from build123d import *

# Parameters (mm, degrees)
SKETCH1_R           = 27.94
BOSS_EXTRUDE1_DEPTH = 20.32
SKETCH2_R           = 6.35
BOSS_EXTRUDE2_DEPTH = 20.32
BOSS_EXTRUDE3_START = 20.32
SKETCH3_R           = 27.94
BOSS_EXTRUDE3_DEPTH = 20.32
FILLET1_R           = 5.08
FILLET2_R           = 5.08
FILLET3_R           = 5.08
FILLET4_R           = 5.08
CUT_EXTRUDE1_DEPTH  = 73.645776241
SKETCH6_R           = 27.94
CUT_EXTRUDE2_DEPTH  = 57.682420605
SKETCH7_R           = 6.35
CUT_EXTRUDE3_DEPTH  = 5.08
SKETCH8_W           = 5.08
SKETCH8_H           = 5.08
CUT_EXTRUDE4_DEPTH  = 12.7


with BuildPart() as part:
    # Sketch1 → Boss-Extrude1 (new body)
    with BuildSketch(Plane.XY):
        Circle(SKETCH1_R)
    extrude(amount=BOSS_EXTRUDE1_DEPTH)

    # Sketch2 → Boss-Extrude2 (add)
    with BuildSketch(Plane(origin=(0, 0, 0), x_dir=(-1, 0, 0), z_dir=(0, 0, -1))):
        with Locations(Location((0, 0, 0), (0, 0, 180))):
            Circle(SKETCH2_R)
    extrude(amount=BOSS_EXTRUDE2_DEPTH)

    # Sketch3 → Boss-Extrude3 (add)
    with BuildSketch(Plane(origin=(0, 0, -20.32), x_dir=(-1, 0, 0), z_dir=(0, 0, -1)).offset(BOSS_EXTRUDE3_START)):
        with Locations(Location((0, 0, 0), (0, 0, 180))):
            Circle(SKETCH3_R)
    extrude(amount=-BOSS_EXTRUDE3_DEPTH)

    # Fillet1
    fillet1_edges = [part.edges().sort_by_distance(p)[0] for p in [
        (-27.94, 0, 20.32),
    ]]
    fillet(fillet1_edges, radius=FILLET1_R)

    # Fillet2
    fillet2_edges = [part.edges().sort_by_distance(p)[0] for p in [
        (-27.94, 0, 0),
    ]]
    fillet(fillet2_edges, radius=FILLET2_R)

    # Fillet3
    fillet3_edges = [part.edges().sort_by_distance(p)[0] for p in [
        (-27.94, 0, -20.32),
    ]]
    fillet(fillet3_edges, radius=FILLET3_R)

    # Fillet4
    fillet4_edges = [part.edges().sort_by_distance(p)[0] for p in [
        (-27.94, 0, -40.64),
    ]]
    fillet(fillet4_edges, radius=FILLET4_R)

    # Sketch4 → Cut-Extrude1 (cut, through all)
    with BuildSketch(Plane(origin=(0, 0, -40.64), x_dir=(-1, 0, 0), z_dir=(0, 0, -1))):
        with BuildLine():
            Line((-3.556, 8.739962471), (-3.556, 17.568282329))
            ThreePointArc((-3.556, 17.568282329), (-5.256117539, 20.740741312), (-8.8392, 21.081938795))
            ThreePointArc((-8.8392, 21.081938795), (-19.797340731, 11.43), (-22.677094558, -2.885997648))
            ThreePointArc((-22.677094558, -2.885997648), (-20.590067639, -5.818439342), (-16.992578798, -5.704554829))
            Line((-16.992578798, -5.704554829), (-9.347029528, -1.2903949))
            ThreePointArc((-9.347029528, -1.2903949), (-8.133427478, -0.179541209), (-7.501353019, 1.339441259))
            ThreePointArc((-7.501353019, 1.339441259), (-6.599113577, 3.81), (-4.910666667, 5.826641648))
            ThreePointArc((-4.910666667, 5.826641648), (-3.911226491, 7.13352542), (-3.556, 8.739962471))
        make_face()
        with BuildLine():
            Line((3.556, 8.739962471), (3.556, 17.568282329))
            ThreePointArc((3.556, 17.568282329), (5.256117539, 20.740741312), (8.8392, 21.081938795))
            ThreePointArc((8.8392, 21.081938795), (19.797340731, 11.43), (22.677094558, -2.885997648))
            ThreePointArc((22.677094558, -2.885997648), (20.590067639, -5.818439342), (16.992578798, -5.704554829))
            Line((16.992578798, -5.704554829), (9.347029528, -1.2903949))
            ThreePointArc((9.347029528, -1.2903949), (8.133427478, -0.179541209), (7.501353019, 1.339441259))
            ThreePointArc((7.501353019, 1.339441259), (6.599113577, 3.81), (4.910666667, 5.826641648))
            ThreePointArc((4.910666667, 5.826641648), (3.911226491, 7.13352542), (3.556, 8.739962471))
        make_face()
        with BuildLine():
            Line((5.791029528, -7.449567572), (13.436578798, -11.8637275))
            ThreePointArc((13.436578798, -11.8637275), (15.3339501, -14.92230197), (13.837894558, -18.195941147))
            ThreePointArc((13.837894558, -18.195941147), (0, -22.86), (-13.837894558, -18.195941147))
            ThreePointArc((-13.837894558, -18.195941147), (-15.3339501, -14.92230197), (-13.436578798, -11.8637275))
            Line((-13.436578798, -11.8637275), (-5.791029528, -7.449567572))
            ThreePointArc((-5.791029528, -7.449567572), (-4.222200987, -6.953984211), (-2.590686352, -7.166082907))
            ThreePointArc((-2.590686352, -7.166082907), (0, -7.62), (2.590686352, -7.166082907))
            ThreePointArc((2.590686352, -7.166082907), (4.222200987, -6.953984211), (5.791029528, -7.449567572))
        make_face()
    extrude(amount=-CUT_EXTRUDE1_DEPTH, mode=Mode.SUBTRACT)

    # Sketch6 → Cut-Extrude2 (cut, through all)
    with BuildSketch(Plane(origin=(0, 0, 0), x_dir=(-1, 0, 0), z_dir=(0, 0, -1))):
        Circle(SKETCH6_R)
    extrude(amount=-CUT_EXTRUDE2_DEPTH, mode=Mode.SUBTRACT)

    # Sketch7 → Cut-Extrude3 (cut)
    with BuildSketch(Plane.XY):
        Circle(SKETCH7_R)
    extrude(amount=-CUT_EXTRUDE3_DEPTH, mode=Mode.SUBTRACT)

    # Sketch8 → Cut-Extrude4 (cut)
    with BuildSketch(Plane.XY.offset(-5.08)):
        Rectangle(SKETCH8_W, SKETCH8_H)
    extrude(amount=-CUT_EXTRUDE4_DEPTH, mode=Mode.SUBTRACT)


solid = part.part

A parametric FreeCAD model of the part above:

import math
import FreeCAD as App
import Part
import Sketcher

V = App.Vector
Q = App.Units.Quantity


def edges_at(feature, points):
    """Names of the edges that pass closest to the given points."""
    edges = feature.Shape.Edges
    near = lambda p: min(range(len(edges)), key=lambda i: edges[i].distToShape(Part.Vertex(*p))[0])
    return sorted({f"Edge{near(p) + 1}" for p in points})


def add_polygon(sketch, points):
    """Adds a closed chain of lines whose ends are joined by coincident constraints."""
    first, n = sketch.GeometryCount, len(points)
    for a, b in zip(points, points[1:] + points[:1]):
        sketch.addGeometry(Part.LineSegment(App.Vector(*a, 0), App.Vector(*b, 0)), False)
    for i in range(n):
        sketch.addConstraint(Sketcher.Constraint("Coincident", first + i, 2, first + (i + 1) % n, 1))

doc = App.newDocument("Part")
body = doc.addObject("PartDesign::Body", "Body")

# Sketch on XY plane
sketch1 = body.newObject("Sketcher::SketchObject", "Sketch")
sketch1.AttachmentSupport = (doc.getObject("XY_Plane"), [""])
sketch1.MapMode = "FlatFace"
sketch1.addGeometry(Part.Circle(V(0, 0, 0), V(0, 0, 1), 28), False)
sketch1.addConstraint([
    Sketcher.Constraint("Coincident", 0, 3, -1, 1),
    Sketcher.Constraint("Diameter", 0, Q("2.2 in")),
])
pad1 = body.newObject("PartDesign::Pad", "Pad")
pad1.Profile = sketch1
pad1.Length = Q("0.8 in")

# Sketch on XY plane
sketch2 = body.newObject("Sketcher::SketchObject", "Sketch001")
sketch2.AttachmentSupport = (doc.getObject("XY_Plane"), [""])
sketch2.MapMode = "FlatFace"
sketch2.addGeometry(Part.Circle(V(0, 0, 0), V(0, 0, 1), 6), False)
sketch2.addConstraint([
    Sketcher.Constraint("Coincident", 0, 3, -1, 1),
    Sketcher.Constraint("Diameter", 0, Q("0.5 in")),
])
pad2 = body.newObject("PartDesign::Pad", "Pad001")
pad2.Profile = sketch2
pad2.Length = Q("0.8 in")
pad2.Reversed = True

# Sketch on XY plane
sketch3 = body.newObject("Sketcher::SketchObject", "Sketch002")
sketch3.AttachmentSupport = (doc.getObject("XY_Plane"), [""])
sketch3.MapMode = "FlatFace"
sketch3.AttachmentOffset = App.Placement(V(0, 0, -1.6 * 25.4), App.Rotation())
sketch3.addGeometry(Part.Circle(V(0, 0, 0), V(0, 0, 1), 28), False)
sketch3.addConstraint([
    Sketcher.Constraint("Coincident", 0, 3, -1, 1),
    Sketcher.Constraint("Diameter", 0, Q("2.2 in")),
])
pad3 = body.newObject("PartDesign::Pad", "Pad002")
pad3.Profile = sketch3
pad3.Length = Q("0.8 in")
doc.recompute()

fillet = body.newObject("PartDesign::Fillet", "Fillet")
fillet.Base = (pad3, edges_at(pad3, [(-27.94, 0, 20.32)]))
fillet.Radius = Q("0.2 in")
doc.recompute()

fillet2 = body.newObject("PartDesign::Fillet", "Fillet001")
fillet2.Base = (fillet, edges_at(fillet, [(-27.94, 0, 0)]))
fillet2.Radius = Q("0.2 in")
doc.recompute()

fillet3 = body.newObject("PartDesign::Fillet", "Fillet002")
fillet3.Base = (fillet2, edges_at(fillet2, [(-27.94, 0, -20.32)]))
fillet3.Radius = Q("0.2 in")
doc.recompute()

fillet4 = body.newObject("PartDesign::Fillet", "Fillet003")
fillet4.Base = (fillet3, edges_at(fillet3, [(-27.94, 0, -40.64)]))
fillet4.Radius = Q("0.2 in")

# Sketch on XY plane
sketch4 = body.newObject("Sketcher::SketchObject", "Sketch003")
sketch4.AttachmentSupport = (doc.getObject("XY_Plane"), [""])
sketch4.MapMode = "FlatFace"
sketch4.AttachmentOffset = App.Placement(V(0, 0, -1.6 * 25.4), App.Rotation())
sketch4.addGeometry([
    Part.LineSegment(V(3.6, 8.7, 0), V(3.6, 17.6, 0)),  # 0
    Part.ArcOfCircle(Part.Circle(V(7.4, 17.6, 0), V(0, 0, 1), 3.8), math.radians(67), math.radians(180)),  # 1
    Part.ArcOfCircle(Part.Circle(V(0, 0, 0), V(0, 0, 1), 22.9), math.radians(-7), math.radians(67)),  # 2
    Part.ArcOfCircle(Part.Circle(V(18.9, -2.4, 0), V(0, 0, 1), 3.8), math.radians(-120), math.radians(-7)),  # 3
    Part.LineSegment(V(17, -5.7, 0), V(9.3, -1.3, 0)),  # 4
    Part.ArcOfCircle(Part.Circle(V(11.3, 2, 0), V(0, 0, 1), 3.8), math.radians(-170), math.radians(-120)),  # 5
    Part.ArcOfCircle(Part.Circle(V(0, 0, 0), V(0, 0, 1), 7.6), math.radians(10), math.radians(50)),  # 6
    Part.ArcOfCircle(Part.Circle(V(7.4, 8.7, 0), V(0, 0, 1), 3.8), math.radians(-180), math.radians(-130)),  # 7
    Part.LineSegment(V(-3.6, 17.6, 0), V(-3.6, 8.7, 0)),  # 8
    Part.ArcOfCircle(Part.Circle(V(-7.4, 8.7, 0), V(0, 0, 1), 3.8), math.radians(-50), math.radians(0)),  # 9
    Part.ArcOfCircle(Part.Circle(V(0, 0, 0), V(0, 0, 1), 7.6), math.radians(130), math.radians(170)),  # 10
    Part.ArcOfCircle(Part.Circle(V(-11.3, 2, 0), V(0, 0, 1), 3.8), math.radians(-60), math.radians(-10)),  # 11
    Part.LineSegment(V(-9.3, -1.3, 0), V(-17, -5.7, 0)),  # 12
    Part.ArcOfCircle(Part.Circle(V(-18.9, -2.4, 0), V(0, 0, 1), 3.8), math.radians(-173), math.radians(-60)),  # 13
    Part.ArcOfCircle(Part.Circle(V(0, 0, 0), V(0, 0, 1), 22.9), math.radians(113), math.radians(187)),  # 14
    Part.ArcOfCircle(Part.Circle(V(-7.4, 17.6, 0), V(0, 0, 1), 3.8), math.radians(0), math.radians(113)),  # 15
    Part.LineSegment(V(-13.4, -11.9, 0), V(-5.8, -7.4, 0)),  # 16
    Part.ArcOfCircle(Part.Circle(V(-3.9, -10.7, 0), V(0, 0, 1), 3.8), math.radians(70), math.radians(120)),  # 17
    Part.ArcOfCircle(Part.Circle(V(0, 0, 0), V(0, 0, 1), 7.6), math.radians(-110), math.radians(-70)),  # 18
    Part.ArcOfCircle(Part.Circle(V(3.9, -10.7, 0), V(0, 0, 1), 3.8), math.radians(60), math.radians(110)),  # 19
    Part.LineSegment(V(5.8, -7.4, 0), V(13.4, -11.9, 0)),  # 20
    Part.ArcOfCircle(Part.Circle(V(11.5, -15.2, 0), V(0, 0, 1), 3.8), math.radians(-53), math.radians(60)),  # 21
    Part.ArcOfCircle(Part.Circle(V(0, 0, 0), V(0, 0, 1), 22.9), math.radians(-127), math.radians(-53)),  # 22
    Part.ArcOfCircle(Part.Circle(V(-11.5, -15.2, 0), V(0, 0, 1), 3.8), math.radians(120), math.radians(233)),  # 23
], False)
sketch4.addConstraint([
    Sketcher.Constraint("Tangent", 0, 2, 1, 2),
    Sketcher.Constraint("Tangent", 1, 1, 2, 2),
    Sketcher.Constraint("Tangent", 2, 1, 3, 2),
    Sketcher.Constraint("Tangent", 3, 1, 4, 1),
    Sketcher.Constraint("Tangent", 4, 2, 5, 2),
    Sketcher.Constraint("Tangent", 5, 1, 6, 1),
    Sketcher.Constraint("Tangent", 6, 2, 7, 2),
    Sketcher.Constraint("Tangent", 7, 1, 0, 1),
    Sketcher.Constraint("Tangent", 8, 2, 9, 2),
    Sketcher.Constraint("Tangent", 9, 1, 10, 1),
    Sketcher.Constraint("Tangent", 10, 2, 11, 2),
    Sketcher.Constraint("Tangent", 11, 1, 12, 1),
    Sketcher.Constraint("Tangent", 12, 2, 13, 2),
    Sketcher.Constraint("Tangent", 13, 1, 14, 2),
    Sketcher.Constraint("Tangent", 14, 1, 15, 2),
    Sketcher.Constraint("Tangent", 15, 1, 8, 1),
    Sketcher.Constraint("Tangent", 16, 2, 17, 2),
    Sketcher.Constraint("Tangent", 17, 1, 18, 1),
    Sketcher.Constraint("Tangent", 18, 2, 19, 2),
    Sketcher.Constraint("Tangent", 19, 1, 20, 1),
    Sketcher.Constraint("Tangent", 20, 2, 21, 2),
    Sketcher.Constraint("Tangent", 21, 1, 22, 2),
    Sketcher.Constraint("Tangent", 22, 1, 23, 2),
    Sketcher.Constraint("Tangent", 23, 1, 16, 1),
    Sketcher.Constraint("Vertical", 0),
    Sketcher.Constraint("Vertical", 8),
    Sketcher.Constraint("Coincident", 2, 3, -1, 1),
    Sketcher.Constraint("Coincident", 6, 3, -1, 1),
    Sketcher.Constraint("Coincident", 10, 3, -1, 1),
    Sketcher.Constraint("Coincident", 14, 3, -1, 1),
    Sketcher.Constraint("Coincident", 18, 3, -1, 1),
    Sketcher.Constraint("Coincident", 22, 3, -1, 1),
    Sketcher.Constraint("Equal", 1, 3),
    Sketcher.Constraint("Equal", 3, 5),
    Sketcher.Constraint("Equal", 5, 7),
    Sketcher.Constraint("Equal", 7, 9),
    Sketcher.Constraint("Equal", 6, 10),
    Sketcher.Constraint("Equal", 9, 11),
    Sketcher.Constraint("Equal", 11, 13),
    Sketcher.Constraint("Equal", 2, 14),
    Sketcher.Constraint("Equal", 13, 15),
    Sketcher.Constraint("Equal", 15, 17),
    Sketcher.Constraint("Equal", 10, 18),
    Sketcher.Constraint("Equal", 17, 19),
    Sketcher.Constraint("Equal", 19, 21),
    Sketcher.Constraint("Equal", 14, 22),
    Sketcher.Constraint("Equal", 21, 23),
    Sketcher.Constraint("Symmetric", 4, 2, 11, 1, -2),
    Sketcher.Constraint("Symmetric", 16, 2, 19, 1, -2),
    Sketcher.Constraint("Parallel", 12, 16),
    Sketcher.Constraint("Horizontal", 7, 3, 9, 3),
    Sketcher.Constraint("Equal", 12, 16),
    Sketcher.Constraint("Radius", 2, Q("0.9 in")),
    Sketcher.Constraint("Radius", 6, Q("0.3 in")),
    Sketcher.Constraint("Radius", 1, Q("0.15 in")),
    Sketcher.Constraint("Angle", 4, Q("150 deg")),
    Sketcher.Constraint("DistanceX", -1, 1, 1, 3, Q("0.29 in")),
    Sketcher.Constraint("DistanceX", 11, 3, 17, 3, Q("0.29 in")),
])
pocket1 = body.newObject("PartDesign::Pocket", "Pocket")
pocket1.Profile = sketch4
pocket1.Type = "ThroughAll"
pocket1.Reversed = True

# Sketch on XY plane
sketch5 = body.newObject("Sketcher::SketchObject", "Sketch004")
sketch5.AttachmentSupport = (doc.getObject("XY_Plane"), [""])
sketch5.MapMode = "FlatFace"
sketch5.addGeometry(Part.Circle(V(0, 0, 0), V(0, 0, 1), 28), False)
sketch5.addConstraint([
    Sketcher.Constraint("Coincident", 0, 3, -1, 1),
    Sketcher.Constraint("Diameter", 0, Q("2.2 in")),
])
pocket2 = body.newObject("PartDesign::Pocket", "Pocket001")
pocket2.Profile = sketch5
pocket2.Type = "ThroughAll"
pocket2.Reversed = True

# Sketch on XY plane
sketch6 = body.newObject("Sketcher::SketchObject", "Sketch005")
sketch6.AttachmentSupport = (doc.getObject("XY_Plane"), [""])
sketch6.MapMode = "FlatFace"
sketch6.addGeometry(Part.Circle(V(0, 0, 0), V(0, 0, 1), 6), False)
sketch6.addConstraint([
    Sketcher.Constraint("Coincident", 0, 3, -1, 1),
    Sketcher.Constraint("Diameter", 0, Q("0.5 in")),
])
pocket3 = body.newObject("PartDesign::Pocket", "Pocket002")
pocket3.Profile = sketch6
pocket3.Length = Q("0.2 in")

# Sketch on XY plane
sketch7 = body.newObject("Sketcher::SketchObject", "Sketch006")
sketch7.AttachmentSupport = (doc.getObject("XY_Plane"), [""])
sketch7.MapMode = "FlatFace"
sketch7.AttachmentOffset = App.Placement(V(0, 0, -0.2 * 25.4), App.Rotation())
add_polygon(sketch7, [(-3, 3), (-3, -3), (3, -3), (3, 3)])  # lines 0-3
sketch7.addConstraint([
    Sketcher.Constraint("Vertical", 0),
    Sketcher.Constraint("Horizontal", 1),
    Sketcher.Constraint("Vertical", 2),
    Sketcher.Constraint("Horizontal", 3),
    Sketcher.Constraint("Symmetric", 0, 2, 2, 2, -1, 1),
    Sketcher.Constraint("Equal", 3, 0),
    Sketcher.Constraint("DistanceX", 1, 1, 1, 2, Q("0.2 in")),
])
pocket4 = body.newObject("PartDesign::Pocket", "Pocket003")
pocket4.Profile = sketch7
pocket4.Length = Q("0.5 in")

doc.recompute()
